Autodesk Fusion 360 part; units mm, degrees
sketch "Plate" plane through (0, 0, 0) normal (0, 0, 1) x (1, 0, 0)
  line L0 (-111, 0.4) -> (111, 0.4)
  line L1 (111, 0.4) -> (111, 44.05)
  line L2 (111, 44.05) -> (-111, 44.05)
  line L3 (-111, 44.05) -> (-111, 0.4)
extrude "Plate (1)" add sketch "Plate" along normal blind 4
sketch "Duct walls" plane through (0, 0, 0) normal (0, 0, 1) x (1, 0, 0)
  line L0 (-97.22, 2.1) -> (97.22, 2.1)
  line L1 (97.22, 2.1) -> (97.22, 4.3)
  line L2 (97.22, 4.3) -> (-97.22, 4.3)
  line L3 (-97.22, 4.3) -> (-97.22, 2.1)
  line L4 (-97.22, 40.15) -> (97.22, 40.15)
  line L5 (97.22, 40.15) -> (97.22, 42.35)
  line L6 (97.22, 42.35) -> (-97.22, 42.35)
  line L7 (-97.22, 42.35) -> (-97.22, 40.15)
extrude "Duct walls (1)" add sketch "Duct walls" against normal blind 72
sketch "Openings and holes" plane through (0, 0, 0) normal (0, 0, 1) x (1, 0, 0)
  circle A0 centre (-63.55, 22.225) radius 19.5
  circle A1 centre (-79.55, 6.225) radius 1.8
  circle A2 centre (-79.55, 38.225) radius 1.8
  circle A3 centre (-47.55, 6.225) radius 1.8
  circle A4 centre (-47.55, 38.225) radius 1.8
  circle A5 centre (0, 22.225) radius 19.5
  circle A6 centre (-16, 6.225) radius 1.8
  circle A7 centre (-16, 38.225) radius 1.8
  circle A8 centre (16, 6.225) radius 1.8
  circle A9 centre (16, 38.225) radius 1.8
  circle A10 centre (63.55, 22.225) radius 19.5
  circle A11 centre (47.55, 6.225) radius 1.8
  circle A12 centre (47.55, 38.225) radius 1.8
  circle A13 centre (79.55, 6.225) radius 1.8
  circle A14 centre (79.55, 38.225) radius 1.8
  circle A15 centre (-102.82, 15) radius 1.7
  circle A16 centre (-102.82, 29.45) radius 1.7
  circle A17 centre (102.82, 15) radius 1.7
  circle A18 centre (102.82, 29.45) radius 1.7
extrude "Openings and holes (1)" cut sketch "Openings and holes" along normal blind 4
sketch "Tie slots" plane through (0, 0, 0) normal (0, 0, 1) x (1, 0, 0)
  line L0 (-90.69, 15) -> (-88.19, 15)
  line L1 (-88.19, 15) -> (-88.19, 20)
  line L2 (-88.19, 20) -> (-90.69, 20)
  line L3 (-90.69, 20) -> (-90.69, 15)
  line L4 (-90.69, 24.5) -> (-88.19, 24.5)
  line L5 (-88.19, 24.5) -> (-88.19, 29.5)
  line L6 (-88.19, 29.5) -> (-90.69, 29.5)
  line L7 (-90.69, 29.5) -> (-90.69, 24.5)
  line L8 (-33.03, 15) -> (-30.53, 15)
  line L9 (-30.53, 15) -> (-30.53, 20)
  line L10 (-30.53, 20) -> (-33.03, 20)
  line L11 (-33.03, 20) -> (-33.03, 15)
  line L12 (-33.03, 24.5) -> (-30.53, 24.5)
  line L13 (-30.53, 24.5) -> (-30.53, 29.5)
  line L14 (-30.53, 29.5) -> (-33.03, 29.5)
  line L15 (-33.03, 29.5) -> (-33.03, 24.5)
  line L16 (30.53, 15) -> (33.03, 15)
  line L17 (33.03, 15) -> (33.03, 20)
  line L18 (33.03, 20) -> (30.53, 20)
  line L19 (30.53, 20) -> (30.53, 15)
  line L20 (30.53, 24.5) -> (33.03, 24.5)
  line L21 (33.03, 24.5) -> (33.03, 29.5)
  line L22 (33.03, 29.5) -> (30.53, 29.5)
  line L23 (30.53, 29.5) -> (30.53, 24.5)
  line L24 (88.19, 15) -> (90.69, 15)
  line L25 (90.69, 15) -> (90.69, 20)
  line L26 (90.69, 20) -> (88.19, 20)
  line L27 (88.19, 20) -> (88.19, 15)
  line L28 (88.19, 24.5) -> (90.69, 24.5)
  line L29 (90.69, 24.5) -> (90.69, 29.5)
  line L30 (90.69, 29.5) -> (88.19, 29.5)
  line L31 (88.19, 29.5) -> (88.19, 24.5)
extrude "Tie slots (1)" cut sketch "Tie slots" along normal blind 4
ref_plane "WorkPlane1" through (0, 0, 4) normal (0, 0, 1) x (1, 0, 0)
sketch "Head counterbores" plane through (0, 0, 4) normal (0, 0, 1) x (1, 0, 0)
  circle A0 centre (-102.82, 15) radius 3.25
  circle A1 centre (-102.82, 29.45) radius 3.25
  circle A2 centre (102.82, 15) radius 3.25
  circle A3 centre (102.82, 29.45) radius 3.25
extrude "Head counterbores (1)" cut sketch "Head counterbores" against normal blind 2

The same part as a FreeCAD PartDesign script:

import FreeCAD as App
import Part
import Sketcher

V = App.Vector
Q = App.Units.Quantity

doc = App.newDocument("Part")
body = doc.addObject("PartDesign::Body", "Body")

# Sketch on XY plane
sketch1 = body.newObject("Sketcher::SketchObject", "Sketch")
sketch1.AttachmentSupport = (doc.getObject("XY_Plane"), [""])
sketch1.MapMode = "FlatFace"
sketch1.addGeometry(Part.LineSegment(V(-111, 44.05, 0), V(-111, 0.4, 0)), False)
sketch1.addGeometry(Part.LineSegment(V(-111, 0.4, 0), V(111, 0.4, 0)), False)
sketch1.addGeometry(Part.LineSegment(V(111, 0.4, 0), V(111, 44.05, 0)), False)
sketch1.addGeometry(Part.LineSegment(V(111, 44.05, 0), V(-111, 44.05, 0)), False)
sketch1.addConstraint(Sketcher.Constraint("Coincident", 0, 2, 1, 1))
sketch1.addConstraint(Sketcher.Constraint("Coincident", 1, 2, 2, 1))
sketch1.addConstraint(Sketcher.Constraint("Coincident", 2, 2, 3, 1))
sketch1.addConstraint(Sketcher.Constraint("Coincident", 3, 2, 0, 1))
sketch1.addConstraint(Sketcher.Constraint("Vertical", 0))
sketch1.addConstraint(Sketcher.Constraint("Horizontal", 1))
sketch1.addConstraint(Sketcher.Constraint("Vertical", 2))
sketch1.addConstraint(Sketcher.Constraint("Horizontal", 3))
sketch1.addConstraint(Sketcher.Constraint("DistanceX", 1, 1, 1, 2, Q("222 mm")))
sketch1.addConstraint(Sketcher.Constraint("DistanceX", 0, 2, -1, 1, Q("111 mm")))
sketch1.addConstraint(Sketcher.Constraint("DistanceY", 0, 2, 0, 1, Q("43.65 mm")))
sketch1.addConstraint(Sketcher.Constraint("DistanceY", -1, 1, 0, 2, Q("0.4 mm")))
pad1 = body.newObject("PartDesign::Pad", "Pad")
pad1.Profile = sketch1
pad1.Length = 4

# Sketch on XY plane
sketch2 = body.newObject("Sketcher::SketchObject", "Sketch001")
sketch2.AttachmentSupport = (doc.getObject("XY_Plane"), [""])
sketch2.MapMode = "FlatFace"
sketch2.addGeometry(Part.LineSegment(V(-97.22, 4.3, 0), V(-97.22, 2.1, 0)), False)
sketch2.addGeometry(Part.LineSegment(V(-97.22, 2.1, 0), V(97.22, 2.1, 0)), False)
sketch2.addGeometry(Part.LineSegment(V(97.22, 2.1, 0), V(97.22, 4.3, 0)), False)
sketch2.addGeometry(Part.LineSegment(V(97.22, 4.3, 0), V(-97.22, 4.3, 0)), False)
sketch2.addGeometry(Part.LineSegment(V(-97.22, 42.35, 0), V(-97.22, 40.15, 0)), False)
sketch2.addGeometry(Part.LineSegment(V(-97.22, 40.15, 0), V(97.22, 40.15, 0)), False)
sketch2.addGeometry(Part.LineSegment(V(97.22, 40.15, 0), V(97.22, 42.35, 0)), False)
sketch2.addGeometry(Part.LineSegment(V(97.22, 42.35, 0), V(-97.22, 42.35, 0)), False)
sketch2.addConstraint(Sketcher.Constraint("Coincident", 0, 2, 1, 1))
sketch2.addConstraint(Sketcher.Constraint("Coincident", 1, 2, 2, 1))
sketch2.addConstraint(Sketcher.Constraint("Coincident", 2, 2, 3, 1))
sketch2.addConstraint(Sketcher.Constraint("Coincident", 3, 2, 0, 1))
sketch2.addConstraint(Sketcher.Constraint("Coincident", 4, 2, 5, 1))
sketch2.addConstraint(Sketcher.Constraint("Coincident", 5, 2, 6, 1))
sketch2.addConstraint(Sketcher.Constraint("Coincident", 6, 2, 7, 1))
sketch2.addConstraint(Sketcher.Constraint("Coincident", 7, 2, 4, 1))
sketch2.addConstraint(Sketcher.Constraint("Vertical", 0))
sketch2.addConstraint(Sketcher.Constraint("Horizontal", 1))
sketch2.addConstraint(Sketcher.Constraint("Vertical", 2))
sketch2.addConstraint(Sketcher.Constraint("Horizontal", 3))
sketch2.addConstraint(Sketcher.Constraint("Vertical", 4))
sketch2.addConstraint(Sketcher.Constraint("Horizontal", 5))
sketch2.addConstraint(Sketcher.Constraint("Vertical", 6))
sketch2.addConstraint(Sketcher.Constraint("Horizontal", 7))
sketch2.addConstraint(Sketcher.Constraint("Vertical", 3, 2, 4, 2))
sketch2.addConstraint(Sketcher.Constraint("Vertical", 2, 2, 5, 2))
sketch2.addConstraint(Sketcher.Constraint("Equal", 2, 4))
sketch2.addConstraint(Sketcher.Constraint("DistanceY", 0, 2, 0, 1, Q("2.2 mm")))
sketch2.addConstraint(Sketcher.Constraint("DistanceX", 1, 1, 1, 2, Q("194.44 mm")))
sketch2.addConstraint(Sketcher.Constraint("DistanceY", -1, 1, 0, 2, Q("2.1 mm")))
sketch2.addConstraint(Sketcher.Constraint("DistanceX", 0, 2, -1, 1, Q("97.22 mm")))
sketch2.addConstraint(Sketcher.Constraint("DistanceY", -1, 1, 4, 2, Q("40.15 mm")))
pad2 = body.newObject("PartDesign::Pad", "Pad001")
pad2.Profile = sketch2
pad2.Length = 72
pad2.Reversed = True

# Sketch on XY plane
sketch3 = body.newObject("Sketcher::SketchObject", "Sketch002")
sketch3.AttachmentSupport = (doc.getObject("XY_Plane"), [""])
sketch3.MapMode = "FlatFace"
sketch3.addGeometry(Part.Circle(V(-63.55, 22.225, 0), V(0, 0, 1), 19.5), False)
sketch3.addGeometry(Part.Circle(V(-79.55, 6.225, 0), V(0, 0, 1), 1.8), False)
sketch3.addGeometry(Part.Circle(V(-79.55, 38.225, 0), V(0, 0, 1), 1.8), False)
sketch3.addGeometry(Part.Circle(V(-47.55, 6.225, 0), V(0, 0, 1), 1.8), False)
sketch3.addGeometry(Part.Circle(V(-47.55, 38.225, 0), V(0, 0, 1), 1.8), False)
sketch3.addGeometry(Part.Circle(V(0, 22.225, 0), V(0, 0, 1), 19.5), False)
sketch3.addGeometry(Part.Circle(V(-16, 6.225, 0), V(0, 0, 1), 1.8), False)
sketch3.addGeometry(Part.Circle(V(-16, 38.225, 0), V(0, 0, 1), 1.8), False)
sketch3.addGeometry(Part.Circle(V(16, 6.225, 0), V(0, 0, 1), 1.8), False)
sketch3.addGeometry(Part.Circle(V(16, 38.225, 0), V(0, 0, 1), 1.8), False)
sketch3.addGeometry(Part.Circle(V(63.55, 22.225, 0), V(0, 0, 1), 19.5), False)
sketch3.addGeometry(Part.Circle(V(47.55, 6.225, 0), V(0, 0, 1), 1.8), False)
sketch3.addGeometry(Part.Circle(V(47.55, 38.225, 0), V(0, 0, 1), 1.8), False)
sketch3.addGeometry(Part.Circle(V(79.55, 6.225, 0), V(0, 0, 1), 1.8), False)
sketch3.addGeometry(Part.Circle(V(79.55, 38.225, 0), V(0, 0, 1), 1.8), False)
sketch3.addGeometry(Part.Circle(V(-102.82, 15, 0), V(0, 0, 1), 1.7), False)
sketch3.addGeometry(Part.Circle(V(-102.82, 29.45, 0), V(0, 0, 1), 1.7), False)
sketch3.addGeometry(Part.Circle(V(102.82, 15, 0), V(0, 0, 1), 1.7), False)
sketch3.addGeometry(Part.Circle(V(102.82, 29.45, 0), V(0, 0, 1), 1.7), False)
sketch3.addConstraint(Sketcher.Constraint("Equal", 1, 2))
sketch3.addConstraint(Sketcher.Constraint("Equal", 2, 3))
sketch3.addConstraint(Sketcher.Constraint("Equal", 3, 4))
sketch3.addConstraint(Sketcher.Constraint("Equal", 0, 5))
sketch3.addConstraint(Sketcher.Constraint("Equal", 4, 6))
sketch3.addConstraint(Sketcher.Constraint("Equal", 6, 7))
sketch3.addConstraint(Sketcher.Constraint("Equal", 7, 8))
sketch3.addConstraint(Sketcher.Constraint("Equal", 8, 9))
sketch3.addConstraint(Sketcher.Constraint("Equal", 5, 10))
sketch3.addConstraint(Sketcher.Constraint("Equal", 9, 11))
sketch3.addConstraint(Sketcher.Constraint("Equal", 11, 12))
sketch3.addConstraint(Sketcher.Constraint("Equal", 12, 13))
sketch3.addConstraint(Sketcher.Constraint("Equal", 13, 14))
sketch3.addConstraint(Sketcher.Constraint("Equal", 15, 16))
sketch3.addConstraint(Sketcher.Constraint("Equal", 16, 17))
sketch3.addConstraint(Sketcher.Constraint("Equal", 17, 18))
sketch3.addConstraint(Sketcher.Constraint("Symmetric", 6, 3, 8, 3, -2))
sketch3.addConstraint(Sketcher.Constraint("Symmetric", 7, 3, 9, 3, -2))
sketch3.addConstraint(Sketcher.Constraint("Symmetric", 0, 3, 10, 3, -2))
sketch3.addConstraint(Sketcher.Constraint("Symmetric", 3, 3, 11, 3, -2))
sketch3.addConstraint(Sketcher.Constraint("Symmetric", 4, 3, 12, 3, -2))
sketch3.addConstraint(Sketcher.Constraint("Symmetric", 1, 3, 13, 3, -2))
sketch3.addConstraint(Sketcher.Constraint("Symmetric", 2, 3, 14, 3, -2))
sketch3.addConstraint(Sketcher.Constraint("Symmetric", 15, 3, 17, 3, -2))
sketch3.addConstraint(Sketcher.Constraint("Symmetric", 16, 3, 18, 3, -2))
sketch3.addConstraint(Sketcher.Constraint("PointOnObject", 5, 3, -2))
sketch3.addConstraint(Sketcher.Constraint("Horizontal", 1, 3, 3, 3))
sketch3.addConstraint(Sketcher.Constraint("Horizontal", 2, 3, 4, 3))
sketch3.addConstraint(Sketcher.Constraint("Horizontal", 0, 3, 5, 3))
sketch3.addConstraint(Sketcher.Constraint("Horizontal", 3, 3, 6, 3))
sketch3.addConstraint(Sketcher.Constraint("Horizontal", 4, 3, 7, 3))
sketch3.addConstraint(Sketcher.Constraint("Vertical", 1, 3, 2, 3))
sketch3.addConstraint(Sketcher.Constraint("Vertical", 3, 3, 4, 3))
sketch3.addConstraint(Sketcher.Constraint("Vertical", 6, 3, 7, 3))
sketch3.addConstraint(Sketcher.Constraint("Vertical", 15, 3, 16, 3))
sketch3.addConstraint(Sketcher.Constraint("Diameter", 0, Q("39 mm")))
sketch3.addConstraint(Sketcher.Constraint("Diameter", 1, Q("3.6 mm")))
sketch3.addConstraint(Sketcher.Constraint("Diameter", 15, Q("3.4 mm")))
sketch3.addConstraint(Sketcher.Constraint("DistanceX", 6, 3, -1, 1, Q("16 mm")))
sketch3.addConstraint(Sketcher.Constraint("DistanceY", -1, 1, 15, 3, Q("15 mm")))
sketch3.addConstraint(Sketcher.Constraint("DistanceX", 1, 3, 0, 3, Q("16 mm")))
sketch3.addConstraint(Sketcher.Constraint("DistanceY", 1, 3, 0, 3, Q("16 mm")))
sketch3.addConstraint(Sketcher.Constraint("DistanceY", 0, 3, 2, 3, Q("16 mm")))
sketch3.addConstraint(Sketcher.Constraint("DistanceX", 0, 3, 3, 3, Q("16 mm")))
sketch3.addConstraint(Sketcher.Constraint("DistanceX", 0, 3, -1, 1, Q("63.55 mm")))
sketch3.addConstraint(Sketcher.Constraint("DistanceX", 15, 3, -1, 1, Q("102.82 mm")))
sketch3.addConstraint(Sketcher.Constraint("DistanceY", -1, 1, 16, 3, Q("29.45 mm")))
sketch3.addConstraint(Sketcher.Constraint("DistanceY", -1, 1, 0, 3, Q("22.225 mm")))
pocket1 = body.newObject("PartDesign::Pocket", "Pocket")
pocket1.Profile = sketch3
pocket1.Length = 4
pocket1.Reversed = True

# Sketch on XY plane
sketch4 = body.newObject("Sketcher::SketchObject", "Sketch003")
sketch4.AttachmentSupport = (doc.getObject("XY_Plane"), [""])
sketch4.MapMode = "FlatFace"
sketch4.addGeometry(Part.LineSegment(V(-90.69, 20, 0), V(-90.69, 15, 0)), False)
sketch4.addGeometry(Part.LineSegment(V(-90.69, 15, 0), V(-88.19, 15, 0)), False)
sketch4.addGeometry(Part.LineSegment(V(-88.19, 15, 0), V(-88.19, 20, 0)), False)
sketch4.addGeometry(Part.LineSegment(V(-88.19, 20, 0), V(-90.69, 20, 0)), False)
sketch4.addGeometry(Part.LineSegment(V(-90.69, 29.5, 0), V(-90.69, 24.5, 0)), False)
sketch4.addGeometry(Part.LineSegment(V(-90.69, 24.5, 0), V(-88.19, 24.5, 0)), False)
sketch4.addGeometry(Part.LineSegment(V(-88.19, 24.5, 0), V(-88.19, 29.5, 0)), False)
sketch4.addGeometry(Part.LineSegment(V(-88.19, 29.5, 0), V(-90.69, 29.5, 0)), False)
sketch4.addGeometry(Part.LineSegment(V(-33.03, 20, 0), V(-33.03, 15, 0)), False)
sketch4.addGeometry(Part.LineSegment(V(-33.03, 15, 0), V(-30.53, 15, 0)), False)
sketch4.addGeometry(Part.LineSegment(V(-30.53, 15, 0), V(-30.53, 20, 0)), False)
sketch4.addGeometry(Part.LineSegment(V(-30.53, 20, 0), V(-33.03, 20, 0)), False)
sketch4.addGeometry(Part.LineSegment(V(-33.03, 29.5, 0), V(-33.03, 24.5, 0)), False)
sketch4.addGeometry(Part.LineSegment(V(-33.03, 24.5, 0), V(-30.53, 24.5, 0)), False)
sketch4.addGeometry(Part.LineSegment(V(-30.53, 24.5, 0), V(-30.53, 29.5, 0)), False)
sketch4.addGeometry(Part.LineSegment(V(-30.53, 29.5, 0), V(-33.03, 29.5, 0)), False)
sketch4.addGeometry(Part.LineSegment(V(30.53, 20, 0), V(30.53, 15, 0)), False)
sketch4.addGeometry(Part.LineSegment(V(30.53, 15, 0), V(33.03, 15, 0)), False)
sketch4.addGeometry(Part.LineSegment(V(33.03, 15, 0), V(33.03, 20, 0)), False)
sketch4.addGeometry(Part.LineSegment(V(33.03, 20, 0), V(30.53, 20, 0)), False)
sketch4.addGeometry(Part.LineSegment(V(30.53, 29.5, 0), V(30.53, 24.5, 0)), False)
sketch4.addGeometry(Part.LineSegment(V(30.53, 24.5, 0), V(33.03, 24.5, 0)), False)
sketch4.addGeometry(Part.LineSegment(V(33.03, 24.5, 0), V(33.03, 29.5, 0)), False)
sketch4.addGeometry(Part.LineSegment(V(33.03, 29.5, 0), V(30.53, 29.5, 0)), False)
sketch4.addGeometry(Part.LineSegment(V(88.19, 20, 0), V(88.19, 15, 0)), False)
sketch4.addGeometry(Part.LineSegment(V(88.19, 15, 0), V(90.69, 15, 0)), False)
sketch4.addGeometry(Part.LineSegment(V(90.69, 15, 0), V(90.69, 20, 0)), False)
sketch4.addGeometry(Part.LineSegment(V(90.69, 20, 0), V(88.19, 20, 0)), False)
sketch4.addGeometry(Part.LineSegment(V(88.19, 29.5, 0), V(88.19, 24.5, 0)), False)
sketch4.addGeometry(Part.LineSegment(V(88.19, 24.5, 0), V(90.69, 24.5, 0)), False)
sketch4.addGeometry(Part.LineSegment(V(90.69, 24.5, 0), V(90.69, 29.5, 0)), False)
sketch4.addGeometry(Part.LineSegment(V(90.69, 29.5, 0), V(88.19, 29.5, 0)), False)
sketch4.addConstraint(Sketcher.Constraint("Coincident", 0, 2, 1, 1))
sketch4.addConstraint(Sketcher.Constraint("Coincident", 1, 2, 2, 1))
sketch4.addConstraint(Sketcher.Constraint("Coincident", 2, 2, 3, 1))
sketch4.addConstraint(Sketcher.Constraint("Coincident", 3, 2, 0, 1))
sketch4.addConstraint(Sketcher.Constraint("Coincident", 4, 2, 5, 1))
sketch4.addConstraint(Sketcher.Constraint("Coincident", 5, 2, 6, 1))
sketch4.addConstraint(Sketcher.Constraint("Coincident", 6, 2, 7, 1))
sketch4.addConstraint(Sketcher.Constraint("Coincident", 7, 2, 4, 1))
sketch4.addConstraint(Sketcher.Constraint("Coincident", 8, 2, 9, 1))
sketch4.addConstraint(Sketcher.Constraint("Coincident", 9, 2, 10, 1))
sketch4.addConstraint(Sketcher.Constraint("Coincident", 10, 2, 11, 1))
sketch4.addConstraint(Sketcher.Constraint("Coincident", 11, 2, 8, 1))
sketch4.addConstraint(Sketcher.Constraint("Coincident", 12, 2, 13, 1))
sketch4.addConstraint(Sketcher.Constraint("Coincident", 13, 2, 14, 1))
sketch4.addConstraint(Sketcher.Constraint("Coincident", 14, 2, 15, 1))
sketch4.addConstraint(Sketcher.Constraint("Coincident", 15, 2, 12, 1))
sketch4.addConstraint(Sketcher.Constraint("Coincident", 16, 2, 17, 1))
sketch4.addConstraint(Sketcher.Constraint("Coincident", 17, 2, 18, 1))
sketch4.addConstraint(Sketcher.Constraint("Coincident", 18, 2, 19, 1))
sketch4.addConstraint(Sketcher.Constraint("Coincident", 19, 2, 16, 1))
sketch4.addConstraint(Sketcher.Constraint("Coincident", 20, 2, 21, 1))
sketch4.addConstraint(Sketcher.Constraint("Coincident", 21, 2, 22, 1))
sketch4.addConstraint(Sketcher.Constraint("Coincident", 22, 2, 23, 1))
sketch4.addConstraint(Sketcher.Constraint("Coincident", 23, 2, 20, 1))
sketch4.addConstraint(Sketcher.Constraint("Coincident", 24, 2, 25, 1))
sketch4.addConstraint(Sketcher.Constraint("Coincident", 25, 2, 26, 1))
sketch4.addConstraint(Sketcher.Constraint("Coincident", 26, 2, 27, 1))
sketch4.addConstraint(Sketcher.Constraint("Coincident", 27, 2, 24, 1))
sketch4.addConstraint(Sketcher.Constraint("Coincident", 28, 2, 29, 1))
sketch4.addConstraint(Sketcher.Constraint("Coincident", 29, 2, 30, 1))
sketch4.addConstraint(Sketcher.Constraint("Coincident", 30, 2, 31, 1))
sketch4.addConstraint(Sketcher.Constraint("Coincident", 31, 2, 28, 1))
sketch4.addConstraint(Sketcher.Constraint("Vertical", 0))
sketch4.addConstraint(Sketcher.Constraint("Horizontal", 1))
sketch4.addConstraint(Sketcher.Constraint("Vertical", 2))
sketch4.addConstraint(Sketcher.Constraint("Horizontal", 3))
sketch4.addConstraint(Sketcher.Constraint("Vertical", 4))
sketch4.addConstraint(Sketcher.Constraint("Horizontal", 5))
sketch4.addConstraint(Sketcher.Constraint("Vertical", 6))
sketch4.addConstraint(Sketcher.Constraint("Horizontal", 7))
sketch4.addConstraint(Sketcher.Constraint("Vertical", 8))
sketch4.addConstraint(Sketcher.Constraint("Horizontal", 9))
sketch4.addConstraint(Sketcher.Constraint("Vertical", 10))
sketch4.addConstraint(Sketcher.Constraint("Horizontal", 11))
sketch4.addConstraint(Sketcher.Constraint("Vertical", 12))
sketch4.addConstraint(Sketcher.Constraint("Horizontal", 13))
sketch4.addConstraint(Sketcher.Constraint("Vertical", 14))
sketch4.addConstraint(Sketcher.Constraint("Horizontal", 15))
sketch4.addConstraint(Sketcher.Constraint("Vertical", 16))
sketch4.addConstraint(Sketcher.Constraint("Horizontal", 17))
sketch4.addConstraint(Sketcher.Constraint("Vertical", 18))
sketch4.addConstraint(Sketcher.Constraint("Horizontal", 19))
sketch4.addConstraint(Sketcher.Constraint("Vertical", 20))
sketch4.addConstraint(Sketcher.Constraint("Horizontal", 21))
sketch4.addConstraint(Sketcher.Constraint("Vertical", 22))
sketch4.addConstraint(Sketcher.Constraint("Horizontal", 23))
sketch4.addConstraint(Sketcher.Constraint("Vertical", 24))
sketch4.addConstraint(Sketcher.Constraint("Horizontal", 25))
sketch4.addConstraint(Sketcher.Constraint("Vertical", 26))
sketch4.addConstraint(Sketcher.Constraint("Horizontal", 27))
sketch4.addConstraint(Sketcher.Constraint("Vertical", 28))
sketch4.addConstraint(Sketcher.Constraint("Horizontal", 29))
sketch4.addConstraint(Sketcher.Constraint("Vertical", 30))
sketch4.addConstraint(Sketcher.Constraint("Horizontal", 31))
sketch4.addConstraint(Sketcher.Constraint("Symmetric", 9, 2, 16, 2, -2))
sketch4.addConstraint(Sketcher.Constraint("Symmetric", 11, 2, 18, 2, -2))
sketch4.addConstraint(Sketcher.Constraint("Symmetric", 13, 2, 20, 2, -2))
sketch4.addConstraint(Sketcher.Constraint("Symmetric", 15, 2, 22, 2, -2))
sketch4.addConstraint(Sketcher.Constraint("Symmetric", 1, 2, 24, 2, -2))
sketch4.addConstraint(Sketcher.Constraint("Symmetric", 3, 2, 26, 2, -2))
sketch4.addConstraint(Sketcher.Constraint("Symmetric", 5, 2, 28, 2, -2))
sketch4.addConstraint(Sketcher.Constraint("Symmetric", 7, 2, 30, 2, -2))
sketch4.addConstraint(Sketcher.Constraint("Horizontal", 1, 2, 8, 2))
sketch4.addConstraint(Sketcher.Constraint("Horizontal", 3, 2, 10, 2))
sketch4.addConstraint(Sketcher.Constraint("Horizontal", 5, 2, 12, 2))
sketch4.addConstraint(Sketcher.Constraint("Horizontal", 7, 2, 14, 2))
sketch4.addConstraint(Sketcher.Constraint("Vertical", 3, 2, 4, 2))
sketch4.addConstraint(Sketcher.Constraint("Vertical", 2, 2, 5, 2))
sketch4.addConstraint(Sketcher.Constraint("Vertical", 11, 2, 12, 2))
sketch4.addConstraint(Sketcher.Constraint("Vertical", 10, 2, 13, 2))
sketch4.addConstraint(Sketcher.Constraint("Equal", 7, 9))
sketch4.addConstraint(Sketcher.Constraint("Equal", 2, 4))
sketch4.addConstraint(Sketcher.Constraint("DistanceY", 0, 2, 0, 1, Q("5 mm")))
sketch4.addConstraint(Sketcher.Constraint("DistanceX", 1, 1, 1, 2, Q("2.5 mm")))
sketch4.addConstraint(Sketcher.Constraint("DistanceY", -1, 1, 0, 2, Q("15 mm")))
sketch4.addConstraint(Sketcher.Constraint("DistanceY", -1, 1, 4, 2, Q("24.5 mm")))
sketch4.addConstraint(Sketcher.Constraint("DistanceX", 0, 2, -1, 1, Q("90.69 mm")))
sketch4.addConstraint(Sketcher.Constraint("DistanceX", 8, 2, -1, 1, Q("33.03 mm")))
pocket2 = body.newObject("PartDesign::Pocket", "Pocket001")
pocket2.Profile = sketch4
pocket2.Length = 4
pocket2.Reversed = True

# Sketch on XY plane
sketch5 = body.newObject("Sketcher::SketchObject", "Sketch004")
sketch5.AttachmentSupport = (doc.getObject("XY_Plane"), [""])
sketch5.MapMode = "FlatFace"
sketch5.AttachmentOffset = App.Placement(V(0, 0, 4), App.Rotation())
sketch5.addGeometry(Part.Circle(V(-102.82, 15, 0), V(0, 0, 1), 3.25), False)
sketch5.addGeometry(Part.Circle(V(-102.82, 29.45, 0), V(0, 0, 1), 3.25), False)
sketch5.addGeometry(Part.Circle(V(102.82, 15, 0), V(0, 0, 1), 3.25), False)
sketch5.addGeometry(Part.Circle(V(102.82, 29.45, 0), V(0, 0, 1), 3.25), False)
sketch5.addConstraint(Sketcher.Constraint("Equal", 0, 1))
sketch5.addConstraint(Sketcher.Constraint("Equal", 1, 2))
sketch5.addConstraint(Sketcher.Constraint("Equal", 2, 3))
sketch5.addConstraint(Sketcher.Constraint("Symmetric", 0, 3, 2, 3, -2))
sketch5.addConstraint(Sketcher.Constraint("Symmetric", 1, 3, 3, 3, -2))
sketch5.addConstraint(Sketcher.Constraint("Vertical", 0, 3, 1, 3))
sketch5.addConstraint(Sketcher.Constraint("Diameter", 0, Q("6.5 mm")))
sketch5.addConstraint(Sketcher.Constraint("DistanceY", -1, 1, 0, 3, Q("15 mm")))
sketch5.addConstraint(Sketcher.Constraint("DistanceX", 0, 3, -1, 1, Q("102.82 mm")))
sketch5.addConstraint(Sketcher.Constraint("DistanceY", -1, 1, 1, 3, Q("29.45 mm")))
pocket3 = body.newObject("PartDesign::Pocket", "Pocket002")
pocket3.Profile = sketch5
pocket3.Length = 2

doc.recompute()
